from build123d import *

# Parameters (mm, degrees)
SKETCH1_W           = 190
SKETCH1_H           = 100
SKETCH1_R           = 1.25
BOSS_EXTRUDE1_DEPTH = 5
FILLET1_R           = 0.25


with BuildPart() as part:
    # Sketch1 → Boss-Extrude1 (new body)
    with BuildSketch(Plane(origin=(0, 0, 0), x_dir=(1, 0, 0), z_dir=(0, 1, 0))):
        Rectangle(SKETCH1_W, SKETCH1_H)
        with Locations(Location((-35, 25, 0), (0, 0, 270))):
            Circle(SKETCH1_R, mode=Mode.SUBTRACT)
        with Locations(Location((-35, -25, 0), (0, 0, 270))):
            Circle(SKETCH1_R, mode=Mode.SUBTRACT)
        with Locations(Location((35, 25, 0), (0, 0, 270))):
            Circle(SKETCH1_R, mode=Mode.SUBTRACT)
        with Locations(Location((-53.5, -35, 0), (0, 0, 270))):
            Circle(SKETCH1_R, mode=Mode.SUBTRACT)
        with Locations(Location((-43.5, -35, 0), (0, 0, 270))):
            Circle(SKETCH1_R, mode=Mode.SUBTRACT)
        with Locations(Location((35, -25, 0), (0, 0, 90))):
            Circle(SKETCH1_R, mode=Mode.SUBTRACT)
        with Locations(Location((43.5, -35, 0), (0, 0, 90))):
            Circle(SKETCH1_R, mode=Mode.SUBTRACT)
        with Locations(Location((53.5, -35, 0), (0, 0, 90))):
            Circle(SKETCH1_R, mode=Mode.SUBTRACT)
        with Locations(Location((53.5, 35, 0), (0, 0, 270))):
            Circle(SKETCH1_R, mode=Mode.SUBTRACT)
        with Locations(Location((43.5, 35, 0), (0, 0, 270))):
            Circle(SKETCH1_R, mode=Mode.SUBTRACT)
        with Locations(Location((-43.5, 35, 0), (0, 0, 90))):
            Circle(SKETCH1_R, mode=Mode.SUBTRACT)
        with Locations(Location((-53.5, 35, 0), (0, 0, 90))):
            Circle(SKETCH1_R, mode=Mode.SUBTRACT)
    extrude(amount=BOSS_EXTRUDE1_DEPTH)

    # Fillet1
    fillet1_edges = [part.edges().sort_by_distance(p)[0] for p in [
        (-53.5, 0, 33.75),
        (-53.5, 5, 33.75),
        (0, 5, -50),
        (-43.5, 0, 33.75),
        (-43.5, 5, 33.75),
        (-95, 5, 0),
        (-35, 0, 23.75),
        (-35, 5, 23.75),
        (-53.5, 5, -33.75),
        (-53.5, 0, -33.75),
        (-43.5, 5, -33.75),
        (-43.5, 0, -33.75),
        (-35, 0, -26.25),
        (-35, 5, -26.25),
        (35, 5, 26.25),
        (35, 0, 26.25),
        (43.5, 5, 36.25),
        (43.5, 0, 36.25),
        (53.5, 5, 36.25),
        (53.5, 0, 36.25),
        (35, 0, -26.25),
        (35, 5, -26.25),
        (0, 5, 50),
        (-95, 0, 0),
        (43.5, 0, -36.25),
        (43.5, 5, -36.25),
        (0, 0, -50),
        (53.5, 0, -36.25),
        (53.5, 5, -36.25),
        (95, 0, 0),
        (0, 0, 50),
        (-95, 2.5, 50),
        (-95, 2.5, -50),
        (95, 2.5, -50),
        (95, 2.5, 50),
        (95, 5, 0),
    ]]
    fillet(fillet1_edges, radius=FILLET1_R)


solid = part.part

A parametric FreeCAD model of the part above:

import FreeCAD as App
import Part
import Sketcher

V = App.Vector

doc = App.newDocument("Part")
body = doc.addObject("PartDesign::Body", "Body")

sketch1 = body.newObject("Sketcher::SketchObject", "Sketch")
sketch1.AttachmentSupport = (doc.getObject("XZ_Plane"), [""])
sketch1.MapMode = "FlatFace"
sketch1.addGeometry([
    Part.LineSegment(V(-95, -50, 0), V(-95, 50, 0)),
    Part.LineSegment(V(-95, 50, 0), V(95, 50, 0)),
    Part.LineSegment(V(95, 50, 0), V(95, -50, 0)),
    Part.LineSegment(V(95, -50, 0), V(-95, -50, 0)),
    Part.Circle(V(-53.5, 35, 0), V(0, 0, 1), 1.2),
    Part.Circle(V(-43.5, 35, 0), V(0, 0, 1), 1.2),
    Part.Circle(V(-35, 25, 0), V(0, 0, 1), 1.2),
    Part.Circle(V(43.5, 35, 0), V(0, 0, 1), 1.2),
    Part.Circle(V(53.5, 35, 0), V(0, 0, 1), 1.2),
    Part.Circle(V(35, 25, 0), V(0, 0, 1), 1.2),
    Part.Circle(V(-35, -25, 0), V(0, 0, 1), 1.2),
    Part.Circle(V(-53.5, -35, 0), V(0, 0, 1), 1.2),
    Part.Circle(V(-43.5, -35, 0), V(0, 0, 1), 1.2),
    Part.Circle(V(35, -25, 0), V(0, 0, 1), 1.2),
    Part.Circle(V(43.5, -35, 0), V(0, 0, 1), 1.2),
    Part.Circle(V(53.5, -35, 0), V(0, 0, 1), 1.2),
], False)
sketch1.addConstraint([
    Sketcher.Constraint("Coincident", 0, 2, 1, 1),
    Sketcher.Constraint("Coincident", 1, 2, 2, 1),
    Sketcher.Constraint("Coincident", 2, 2, 3, 1),
    Sketcher.Constraint("Coincident", 3, 2, 0, 1),
    Sketcher.Constraint("Vertical", 0),
    Sketcher.Constraint("Horizontal", 1),
    Sketcher.Constraint("Vertical", 2),
    Sketcher.Constraint("Horizontal", 3),
    Sketcher.Constraint("Equal", 4, 5),
    Sketcher.Constraint("Equal", 5, 6),
    Sketcher.Constraint("Equal", 6, 7),
    Sketcher.Constraint("Equal", 7, 8),
    Sketcher.Constraint("Equal", 8, 9),
    Sketcher.Constraint("Equal", 9, 10),
    Sketcher.Constraint("Equal", 10, 11),
    Sketcher.Constraint("Equal", 11, 12),
    Sketcher.Constraint("Equal", 12, 13),
    Sketcher.Constraint("Equal", 13, 14),
    Sketcher.Constraint("Equal", 14, 15),
    Sketcher.Constraint("Symmetric", 9, 3, 10, 3, -1, 1),
    Sketcher.Constraint("Symmetric", 8, 3, 11, 3, -1, 1),
    Sketcher.Constraint("Symmetric", 7, 3, 12, 3, -1, 1),
    Sketcher.Constraint("Symmetric", 6, 3, 13, 3, -1, 1),
    Sketcher.Constraint("Symmetric", 5, 3, 14, 3, -1, 1),
    Sketcher.Constraint("Symmetric", 4, 3, 15, 3, -1, 1),
    Sketcher.Constraint("Symmetric", 0, 2, 2, 2, -1, 1),
    Sketcher.Constraint("Symmetric", 5, 3, 7, 3, -2),
    Sketcher.Constraint("Symmetric", 4, 3, 8, 3, -2),
    Sketcher.Constraint("Symmetric", 6, 3, 9, 3, -2),
    Sketcher.Constraint("Horizontal", 4, 3, 5, 3),
    Sketcher.Constraint("Diameter", 4, 2.5),
    Sketcher.Constraint("DistanceX", 1, 1, 1, 2, 190.0),
    Sketcher.Constraint("DistanceY", 0, 1, 0, 2, 100.0),
    Sketcher.Constraint("DistanceY", -1, 1, 4, 3, 35.0),
    Sketcher.Constraint("DistanceX", 6, 3, -1, 1, 35.0),
    Sketcher.Constraint("DistanceY", -1, 1, 6, 3, 25.0),
    Sketcher.Constraint("DistanceX", 4, 3, 5, 3, 10.0),
    Sketcher.Constraint("DistanceX", 5, 3, 7, 3, 87.0),
])
pad1 = body.newObject("PartDesign::Pad", "Pad")
pad1.Profile = sketch1
pad1.Length = 5
pad1.Reversed = True
doc.recompute()

fillet = body.newObject("PartDesign::Fillet", "Fillet")
fillet.Base = (pad1, ["Edge1"])
fillet.UseAllEdges = True
fillet.Radius = 0.25

doc.recompute()
